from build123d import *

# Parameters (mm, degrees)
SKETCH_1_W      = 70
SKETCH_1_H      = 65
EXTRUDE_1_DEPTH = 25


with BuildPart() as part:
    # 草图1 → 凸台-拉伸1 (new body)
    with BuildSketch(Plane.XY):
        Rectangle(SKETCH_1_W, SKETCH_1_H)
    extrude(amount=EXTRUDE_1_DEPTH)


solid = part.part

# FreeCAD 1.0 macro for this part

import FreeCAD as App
import Part
import Sketcher
from FreeCAD import Vector
Q = App.Units.Quantity

doc = App.newDocument("Part")
params = doc.addObject("Spreadsheet::Sheet", "Params")
for row, (alias, value) in enumerate([
    ("sketch1_width", "70 mm"),
    ("sketch1_height", "65 mm"),
    ("pad1_length", "25 mm"),
], start=1):
    params.set(f"A{row}", alias)
    params.set(f"B{row}", "=" + value)
    params.setAlias(f"B{row}", alias)

body = doc.addObject("PartDesign::Body", "Body")

# Sketch on XY plane
sketch1 = body.newObject("Sketcher::SketchObject", "Sketch")
sketch1.AttachmentSupport = (doc.getObject("XY_Plane"), [""])
sketch1.MapMode = "FlatFace"
sketch1.addGeometry([
    Part.LineSegment(Vector(-35, 32.5, 0), Vector(-35, -32.5, 0)),
    Part.LineSegment(Vector(-35, -32.5, 0), Vector(35, -32.5, 0)),
    Part.LineSegment(Vector(35, -32.5, 0), Vector(35, 32.5, 0)),
    Part.LineSegment(Vector(35, 32.5, 0), Vector(-35, 32.5, 0)),
], False)
sketch1.addConstraint([
    Sketcher.Constraint("Coincident", 0, 2, 1, 1),
    Sketcher.Constraint("Coincident", 1, 2, 2, 1),
    Sketcher.Constraint("Coincident", 2, 2, 3, 1),
    Sketcher.Constraint("Coincident", 3, 2, 0, 1),
    Sketcher.Constraint("Vertical", 0),
    Sketcher.Constraint("Horizontal", 1),
    Sketcher.Constraint("Vertical", 2),
    Sketcher.Constraint("Horizontal", 3),
    Sketcher.Constraint("Symmetric", 0, 2, 2, 2, -1, 1),
    Sketcher.Constraint("DistanceX", 1, 1, 1, 2, Q("70 mm")),
    Sketcher.Constraint("DistanceY", 0, 2, 0, 1, Q("65 mm")),
])
sketch1.setExpression("Constraints[9]", "Params.sketch1_width")
sketch1.setExpression("Constraints[10]", "Params.sketch1_height")
pad1 = body.newObject("PartDesign::Pad", "Pad")
pad1.Profile = sketch1
pad1.setExpression("Length", "Params.pad1_length")

doc.recompute()
